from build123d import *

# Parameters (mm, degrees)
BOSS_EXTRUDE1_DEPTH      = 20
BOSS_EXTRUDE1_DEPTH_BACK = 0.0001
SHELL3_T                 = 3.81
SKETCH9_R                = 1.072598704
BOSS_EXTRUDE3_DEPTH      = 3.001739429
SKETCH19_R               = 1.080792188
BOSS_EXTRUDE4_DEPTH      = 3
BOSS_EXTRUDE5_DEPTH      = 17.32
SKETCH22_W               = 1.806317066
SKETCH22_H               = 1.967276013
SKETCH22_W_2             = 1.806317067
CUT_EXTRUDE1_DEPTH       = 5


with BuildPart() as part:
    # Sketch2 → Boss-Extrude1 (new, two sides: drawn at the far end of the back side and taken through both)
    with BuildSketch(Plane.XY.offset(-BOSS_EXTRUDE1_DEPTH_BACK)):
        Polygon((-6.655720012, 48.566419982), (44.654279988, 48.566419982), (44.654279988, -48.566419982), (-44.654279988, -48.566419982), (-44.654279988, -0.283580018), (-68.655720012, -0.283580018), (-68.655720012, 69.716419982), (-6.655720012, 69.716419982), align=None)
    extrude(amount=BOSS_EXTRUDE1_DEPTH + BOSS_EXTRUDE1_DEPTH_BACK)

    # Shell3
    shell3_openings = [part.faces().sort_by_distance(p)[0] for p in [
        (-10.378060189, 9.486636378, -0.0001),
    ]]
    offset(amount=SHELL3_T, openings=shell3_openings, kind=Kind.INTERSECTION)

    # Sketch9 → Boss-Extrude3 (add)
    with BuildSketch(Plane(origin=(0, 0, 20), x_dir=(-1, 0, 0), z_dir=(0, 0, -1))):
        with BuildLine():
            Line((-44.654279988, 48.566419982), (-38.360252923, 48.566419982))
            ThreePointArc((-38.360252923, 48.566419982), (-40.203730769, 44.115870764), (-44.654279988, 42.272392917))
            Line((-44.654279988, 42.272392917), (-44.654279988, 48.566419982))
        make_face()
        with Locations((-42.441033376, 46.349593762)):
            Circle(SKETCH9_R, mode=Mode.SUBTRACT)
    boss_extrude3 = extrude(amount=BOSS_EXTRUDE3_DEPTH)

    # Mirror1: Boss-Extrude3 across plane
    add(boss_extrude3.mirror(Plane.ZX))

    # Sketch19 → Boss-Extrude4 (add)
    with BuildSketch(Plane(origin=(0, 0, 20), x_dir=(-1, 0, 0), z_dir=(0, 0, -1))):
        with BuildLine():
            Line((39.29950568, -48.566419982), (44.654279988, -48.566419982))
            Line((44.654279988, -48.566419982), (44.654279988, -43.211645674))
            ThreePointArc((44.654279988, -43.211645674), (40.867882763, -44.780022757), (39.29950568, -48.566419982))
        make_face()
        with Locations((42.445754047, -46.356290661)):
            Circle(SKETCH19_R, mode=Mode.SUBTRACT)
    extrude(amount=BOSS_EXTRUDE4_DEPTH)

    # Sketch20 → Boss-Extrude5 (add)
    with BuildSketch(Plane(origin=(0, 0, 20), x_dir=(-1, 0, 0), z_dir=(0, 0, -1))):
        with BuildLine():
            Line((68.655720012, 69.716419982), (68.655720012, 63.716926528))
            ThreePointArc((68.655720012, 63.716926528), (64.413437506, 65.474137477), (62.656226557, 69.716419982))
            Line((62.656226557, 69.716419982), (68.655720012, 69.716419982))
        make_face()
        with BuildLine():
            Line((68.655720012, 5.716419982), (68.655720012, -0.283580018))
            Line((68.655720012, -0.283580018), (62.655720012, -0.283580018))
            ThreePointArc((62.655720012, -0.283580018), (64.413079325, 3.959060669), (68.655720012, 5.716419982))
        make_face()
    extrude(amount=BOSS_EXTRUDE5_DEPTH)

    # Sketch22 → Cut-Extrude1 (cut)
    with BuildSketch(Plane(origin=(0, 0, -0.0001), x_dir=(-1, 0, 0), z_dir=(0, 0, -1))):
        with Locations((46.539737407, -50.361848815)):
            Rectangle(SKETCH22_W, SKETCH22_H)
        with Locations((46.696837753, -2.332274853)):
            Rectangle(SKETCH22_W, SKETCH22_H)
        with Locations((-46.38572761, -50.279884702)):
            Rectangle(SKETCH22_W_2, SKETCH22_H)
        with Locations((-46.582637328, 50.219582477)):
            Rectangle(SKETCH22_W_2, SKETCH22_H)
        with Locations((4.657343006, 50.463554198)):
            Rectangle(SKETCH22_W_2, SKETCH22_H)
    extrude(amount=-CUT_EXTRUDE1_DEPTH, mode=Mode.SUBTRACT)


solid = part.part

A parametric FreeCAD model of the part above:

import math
import FreeCAD as App
import Part
import Sketcher

V = App.Vector
Q = App.Units.Quantity


def faces_at(feature, points):
    """Names of the faces that lie closest to the given points."""
    faces = feature.Shape.Faces
    near = lambda p: min(range(len(faces)), key=lambda i: faces[i].distToShape(Part.Vertex(*p))[0])
    return sorted({f"Face{near(p) + 1}" for p in points})


def add_polygon(sketch, points):
    """Adds a closed chain of lines whose ends are joined by coincident constraints."""
    first, n = sketch.GeometryCount, len(points)
    for a, b in zip(points, points[1:] + points[:1]):
        sketch.addGeometry(Part.LineSegment(App.Vector(*a, 0), App.Vector(*b, 0)), False)
    for i in range(n):
        sketch.addConstraint(Sketcher.Constraint("Coincident", first + i, 2, first + (i + 1) % n, 1))

doc = App.newDocument("Part")
body = doc.addObject("PartDesign::Body", "Body")

# Sketch on XY plane
sketch1 = body.newObject("Sketcher::SketchObject", "Sketch")
sketch1.AttachmentSupport = (doc.getObject("XY_Plane"), [""])
sketch1.MapMode = "FlatFace"
add_polygon(sketch1, [(45, 49), (-7, 49), (-7, 70), (-69, 70), (-69, 0), (-45, 0), (-45, -49), (45, -49)])  # lines 0-7
sketch1.addConstraint(Sketcher.Constraint("Horizontal", 0))
sketch1.addConstraint(Sketcher.Constraint("Vertical", 1))
sketch1.addConstraint(Sketcher.Constraint("Horizontal", 2))
sketch1.addConstraint(Sketcher.Constraint("Vertical", 3))
sketch1.addConstraint(Sketcher.Constraint("Horizontal", 4))
sketch1.addConstraint(Sketcher.Constraint("Vertical", 5))
sketch1.addConstraint(Sketcher.Constraint("Horizontal", 6))
sketch1.addConstraint(Sketcher.Constraint("Vertical", 7))
sketch1.addConstraint(Sketcher.Constraint("Symmetric", 5, 2, 7, 2, -1, 1))
sketch1.addConstraint(Sketcher.Constraint("DistanceX", 2, 2, 2, 1, Q("62 mm")))
sketch1.addConstraint(Sketcher.Constraint("DistanceY", 3, 2, 3, 1, Q("70 mm")))
sketch1.addConstraint(Sketcher.Constraint("DistanceX", 0, 2, 0, 1, Q("51.31 mm")))
sketch1.addConstraint(Sketcher.Constraint("DistanceY", 1, 1, 1, 2, Q("21.15 mm")))
sketch1.addConstraint(Sketcher.Constraint("DistanceX", 4, 1, 4, 2, Q("24.00144 mm")))
sketch1.addConstraint(Sketcher.Constraint("DistanceY", 5, 2, 5, 1, Q("48.28284 mm")))
pad1 = body.newObject("PartDesign::Pad", "Pad")
pad1.Profile = sketch1
pad1.Type = "TwoLengths"
pad1.Length = 20
pad1.Length2 = 0.0001
doc.recompute()

thickness = body.newObject("PartDesign::Thickness", "Thickness")
thickness.Base = (pad1, faces_at(pad1, [(-12.001, 10.575, 0)]))
thickness.Value = 3.81
thickness.Reversed = False
thickness.Join = "Intersection"

# Sketch on XY plane
sketch2 = body.newObject("Sketcher::SketchObject", "Sketch001")
sketch2.AttachmentSupport = (doc.getObject("XY_Plane"), [""])
sketch2.MapMode = "FlatFace"
sketch2.AttachmentOffset = App.Placement(V(0, 0, 20), App.Rotation())
sketch2.addGeometry(Part.LineSegment(V(38.4, 48.6, 0), V(44.7, 48.6, 0)), False)
sketch2.addGeometry(Part.LineSegment(V(44.7, 48.6, 0), V(44.7, 42.3, 0)), False)
sketch2.addGeometry(Part.ArcOfCircle(Part.Circle(V(44.7, 48.6, 0), V(0, 0, 1), 6.3), math.radians(180), math.radians(270)), False)
sketch2.addGeometry(Part.Circle(V(42.4, 46.3, 0), V(0, 0, 1), 1.1), False)
sketch2.addConstraint(Sketcher.Constraint("Coincident", 0, 2, 1, 1))
sketch2.addConstraint(Sketcher.Constraint("Coincident", 1, 2, 2, 2))
sketch2.addConstraint(Sketcher.Constraint("Coincident", 2, 1, 0, 1))
sketch2.addConstraint(Sketcher.Constraint("Horizontal", 0))
sketch2.addConstraint(Sketcher.Constraint("Vertical", 1))
sketch2.addConstraint(Sketcher.Constraint("Coincident", 0, 2, 2, 3))
sketch2.addConstraint(Sketcher.Constraint("Diameter", 3, Q("2.145197 mm")))
sketch2.addConstraint(Sketcher.Constraint("Radius", 2, Q("6.294027 mm")))
sketch2.addConstraint(Sketcher.Constraint("DistanceY", 1, 2, 3, 3, Q("4.077201 mm")))
sketch2.addConstraint(Sketcher.Constraint("DistanceX", -1, 1, 2, 3, Q("44.65428 mm")))
sketch2.addConstraint(Sketcher.Constraint("DistanceY", -1, 1, 2, 3, Q("48.56642 mm")))
sketch2.addConstraint(Sketcher.Constraint("DistanceX", 2, 1, 3, 3, Q("4.08078 mm")))
pad2 = body.newObject("PartDesign::Pad", "Pad001")
pad2.Profile = sketch2
pad2.Length = 3.001739
pad2.Reversed = True
doc.recompute()

mirrored = body.newObject("PartDesign::Mirrored", "Mirrored")
mirrored.Originals = [pad2]
mirrored.MirrorPlane = (doc.getObject("XZ_Plane"), [""])
body.Tip = mirrored

# Sketch on XY plane
sketch3 = body.newObject("Sketcher::SketchObject", "Sketch002")
sketch3.AttachmentSupport = (doc.getObject("XY_Plane"), [""])
sketch3.MapMode = "FlatFace"
sketch3.AttachmentOffset = App.Placement(V(0, 0, 20), App.Rotation())
sketch3.addGeometry(Part.LineSegment(V(-39.3, -48.6, 0), V(-44.7, -48.6, 0)), False)
sketch3.addGeometry(Part.LineSegment(V(-44.7, -48.6, 0), V(-44.7, -43.2, 0)), False)
sketch3.addGeometry(Part.ArcOfCircle(Part.Circle(V(-44.7, -48.6, 0), V(0, 0, 1), 5.4), math.radians(0), math.radians(90)), False)
sketch3.addGeometry(Part.Circle(V(-42.4, -46.4, 0), V(0, 0, 1), 1.1), False)
sketch3.addConstraint(Sketcher.Constraint("Coincident", 0, 2, 1, 1))
sketch3.addConstraint(Sketcher.Constraint("Coincident", 1, 2, 2, 2))
sketch3.addConstraint(Sketcher.Constraint("Coincident", 2, 1, 0, 1))
sketch3.addConstraint(Sketcher.Constraint("Horizontal", 0))
sketch3.addConstraint(Sketcher.Constraint("Vertical", 1))
sketch3.addConstraint(Sketcher.Constraint("Coincident", 0, 2, 2, 3))
sketch3.addConstraint(Sketcher.Constraint("Diameter", 3, Q("2.161584 mm")))
sketch3.addConstraint(Sketcher.Constraint("Radius", 2, Q("5.354774 mm")))
sketch3.addConstraint(Sketcher.Constraint("DistanceX", 2, 3, -1, 1, Q("44.65428 mm")))
sketch3.addConstraint(Sketcher.Constraint("DistanceY", 2, 3, -1, 1, Q("48.56642 mm")))
sketch3.addConstraint(Sketcher.Constraint("DistanceY", 3, 3, -1, 1, Q("46.356291 mm")))
sketch3.addConstraint(Sketcher.Constraint("DistanceX", 3, 3, 2, 1, Q("3.146248 mm")))
pad3 = body.newObject("PartDesign::Pad", "Pad002")
pad3.Profile = sketch3
pad3.Length = 3
pad3.Reversed = True

# Sketch on XY plane
sketch4 = body.newObject("Sketcher::SketchObject", "Sketch003")
sketch4.AttachmentSupport = (doc.getObject("XY_Plane"), [""])
sketch4.MapMode = "FlatFace"
sketch4.AttachmentOffset = App.Placement(V(0, 0, 20), App.Rotation())
sketch4.addGeometry(Part.LineSegment(V(-69, 64, 0), V(-69, 70, 0)), False)
sketch4.addGeometry(Part.LineSegment(V(-69, 70, 0), V(-63, 70, 0)), False)
sketch4.addGeometry(Part.ArcOfCircle(Part.Circle(V(-69, 70, 0), V(0, 0, 1), 6), math.radians(-90), math.radians(0)), False)
sketch4.addGeometry(Part.LineSegment(V(-69, 0, 0), V(-69, 6, 0)), False)
sketch4.addGeometry(Part.ArcOfCircle(Part.Circle(V(-69, 0, 0), V(0, 0, 1), 6), math.radians(0), math.radians(90)), False)
sketch4.addGeometry(Part.LineSegment(V(-63, 0, 0), V(-69, 0, 0)), False)
sketch4.addConstraint(Sketcher.Constraint("Coincident", 0, 2, 1, 1))
sketch4.addConstraint(Sketcher.Constraint("Coincident", 1, 2, 2, 2))
sketch4.addConstraint(Sketcher.Constraint("Coincident", 2, 1, 0, 1))
sketch4.addConstraint(Sketcher.Constraint("Coincident", 3, 2, 4, 2))
sketch4.addConstraint(Sketcher.Constraint("Coincident", 4, 1, 5, 1))
sketch4.addConstraint(Sketcher.Constraint("Coincident", 5, 2, 3, 1))
sketch4.addConstraint(Sketcher.Constraint("Vertical", 0))
sketch4.addConstraint(Sketcher.Constraint("Horizontal", 1))
sketch4.addConstraint(Sketcher.Constraint("Vertical", 3))
sketch4.addConstraint(Sketcher.Constraint("Horizontal", 5))
sketch4.addConstraint(Sketcher.Constraint("Coincident", 0, 2, 2, 3))
sketch4.addConstraint(Sketcher.Constraint("Coincident", 5, 2, 4, 3))
sketch4.addConstraint(Sketcher.Constraint("Vertical", 2, 3, 4, 3))
sketch4.addConstraint(Sketcher.Constraint("Radius", 4, Q("6 mm")))
sketch4.addConstraint(Sketcher.Constraint("DistanceY", 4, 3, 2, 3, Q("70 mm")))
sketch4.addConstraint(Sketcher.Constraint("Radius", 2, Q("5.999493 mm")))
sketch4.addConstraint(Sketcher.Constraint("DistanceX", 2, 3, -1, 1, Q("68.65572 mm")))
sketch4.addConstraint(Sketcher.Constraint("DistanceY", -1, 1, 2, 3, Q("69.71642 mm")))
pad4 = body.newObject("PartDesign::Pad", "Pad003")
pad4.Profile = sketch4
pad4.Length = 17.32
pad4.Reversed = True

# Sketch on XY plane
sketch5 = body.newObject("Sketcher::SketchObject", "Sketch004")
sketch5.AttachmentSupport = (doc.getObject("XY_Plane"), [""])
sketch5.MapMode = "FlatFace"
sketch5.AttachmentOffset = App.Placement(V(0, 0, -0.0001), App.Rotation())
add_polygon(sketch5, [(-45.6, -49.4), (-45.6, -51.3), (-47.4, -51.3), (-47.4, -49.4)])  # lines 0-3
add_polygon(sketch5, [(-45.8, -1.3), (-45.8, -3.3), (-47.6, -3.3), (-47.6, -1.3)])  # lines 4-7
add_polygon(sketch5, [(47.3, -49.3), (47.3, -51.3), (45.5, -51.3), (45.5, -49.3)])  # lines 8-11
add_polygon(sketch5, [(47.5, 51.2), (47.5, 49.2), (45.7, 49.2), (45.7, 51.2)])  # lines 12-15
add_polygon(sketch5, [(-3.8, 51.4), (-3.8, 49.5), (-5.6, 49.5), (-5.6, 51.4)])  # lines 16-19
sketch5.addConstraint(Sketcher.Constraint("Vertical", 0))
sketch5.addConstraint(Sketcher.Constraint("Horizontal", 1))
sketch5.addConstraint(Sketcher.Constraint("Vertical", 2))
sketch5.addConstraint(Sketcher.Constraint("Horizontal", 3))
sketch5.addConstraint(Sketcher.Constraint("Vertical", 4))
sketch5.addConstraint(Sketcher.Constraint("Horizontal", 5))
sketch5.addConstraint(Sketcher.Constraint("Vertical", 6))
sketch5.addConstraint(Sketcher.Constraint("Horizontal", 7))
sketch5.addConstraint(Sketcher.Constraint("Vertical", 8))
sketch5.addConstraint(Sketcher.Constraint("Horizontal", 9))
sketch5.addConstraint(Sketcher.Constraint("Vertical", 10))
sketch5.addConstraint(Sketcher.Constraint("Horizontal", 11))
sketch5.addConstraint(Sketcher.Constraint("Vertical", 12))
sketch5.addConstraint(Sketcher.Constraint("Horizontal", 13))
sketch5.addConstraint(Sketcher.Constraint("Vertical", 14))
sketch5.addConstraint(Sketcher.Constraint("Horizontal", 15))
sketch5.addConstraint(Sketcher.Constraint("Vertical", 16))
sketch5.addConstraint(Sketcher.Constraint("Horizontal", 17))
sketch5.addConstraint(Sketcher.Constraint("Vertical", 18))
sketch5.addConstraint(Sketcher.Constraint("Horizontal", 19))
sketch5.addConstraint(Sketcher.Constraint("Equal", 3, 5))
sketch5.addConstraint(Sketcher.Constraint("Equal", 7, 9))
sketch5.addConstraint(Sketcher.Constraint("Equal", 11, 13))
sketch5.addConstraint(Sketcher.Constraint("Equal", 15, 17))
sketch5.addConstraint(Sketcher.Constraint("Equal", 2, 4))
sketch5.addConstraint(Sketcher.Constraint("Equal", 6, 8))
sketch5.addConstraint(Sketcher.Constraint("Equal", 10, 12))
sketch5.addConstraint(Sketcher.Constraint("Equal", 14, 16))
sketch5.addConstraint(Sketcher.Constraint("DistanceX", 17, 2, -1, 1, Q("5.560502 mm")))
sketch5.addConstraint(Sketcher.Constraint("DistanceX", 4, 2, 3, 2, Q("0.1571 mm")))
sketch5.addConstraint(Sketcher.Constraint("DistanceX", 1, 2, 1, 1, Q("1.806317 mm")))
sketch5.addConstraint(Sketcher.Constraint("DistanceY", 0, 2, 0, 1, Q("1.967276 mm")))
sketch5.addConstraint(Sketcher.Constraint("DistanceX", 0, 2, -1, 1, Q("45.636579 mm")))
sketch5.addConstraint(Sketcher.Constraint("DistanceY", 2, 2, -1, 1, Q("49.378211 mm")))
sketch5.addConstraint(Sketcher.Constraint("DistanceX", -1, 1, 9, 2, Q("45.482569 mm")))
sketch5.addConstraint(Sketcher.Constraint("DistanceX", -1, 1, 13, 2, Q("45.679479 mm")))
sketch5.addConstraint(Sketcher.Constraint("DistanceY", -1, 1, 14, 2, Q("51.20322 mm")))
sketch5.addConstraint(Sketcher.Constraint("DistanceY", 1, 2, 6, 2, Q("49.99685 mm")))
sketch5.addConstraint(Sketcher.Constraint("DistanceY", 8, 2, 3, 2, Q("1.885312 mm")))
sketch5.addConstraint(Sketcher.Constraint("DistanceY", 13, 2, 16, 2, Q("0.243972 mm")))
pocket1 = body.newObject("PartDesign::Pocket", "Pocket")
pocket1.Profile = sketch5
pocket1.Length = 5
pocket1.Reversed = True

doc.recompute()
